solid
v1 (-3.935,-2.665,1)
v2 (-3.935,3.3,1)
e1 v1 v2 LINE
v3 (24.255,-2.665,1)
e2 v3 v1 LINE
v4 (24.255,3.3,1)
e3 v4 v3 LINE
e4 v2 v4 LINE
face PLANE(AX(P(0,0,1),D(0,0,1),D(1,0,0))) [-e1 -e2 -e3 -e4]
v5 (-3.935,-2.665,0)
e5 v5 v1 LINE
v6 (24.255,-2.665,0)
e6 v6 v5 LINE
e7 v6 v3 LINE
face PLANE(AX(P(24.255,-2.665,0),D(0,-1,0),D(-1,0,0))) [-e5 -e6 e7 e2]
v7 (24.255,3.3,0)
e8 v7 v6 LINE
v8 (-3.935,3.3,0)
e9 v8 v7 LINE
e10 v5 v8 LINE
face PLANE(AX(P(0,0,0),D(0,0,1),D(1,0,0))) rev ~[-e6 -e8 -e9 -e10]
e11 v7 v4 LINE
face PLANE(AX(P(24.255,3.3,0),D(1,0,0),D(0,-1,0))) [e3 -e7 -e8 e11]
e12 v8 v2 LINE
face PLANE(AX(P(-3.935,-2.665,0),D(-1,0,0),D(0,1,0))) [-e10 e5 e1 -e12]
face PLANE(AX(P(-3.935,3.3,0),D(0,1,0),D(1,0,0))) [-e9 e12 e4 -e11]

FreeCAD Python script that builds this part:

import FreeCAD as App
import Part
import Sketcher

V = App.Vector


def add_polygon(sketch, points):
    """Adds a closed chain of lines whose ends are joined by coincident constraints."""
    first, n = sketch.GeometryCount, len(points)
    for a, b in zip(points, points[1:] + points[:1]):
        sketch.addGeometry(Part.LineSegment(App.Vector(*a, 0), App.Vector(*b, 0)), False)
    for i in range(n):
        sketch.addConstraint(Sketcher.Constraint("Coincident", first + i, 2, first + (i + 1) % n, 1))

doc = App.newDocument("Part")
body = doc.addObject("PartDesign::Body", "Body")

sketch1 = body.newObject("Sketcher::SketchObject", "Sketch")
sketch1.AttachmentSupport = (doc.getObject("XY_Plane"), [""])
sketch1.MapMode = "FlatFace"
add_polygon(sketch1, [(-3.935, 3.3), (-3.935, -2.665), (24.255, -2.665), (24.255, 3.3)])
sketch1.addConstraint([
    Sketcher.Constraint("Vertical", 0),
    Sketcher.Constraint("Horizontal", 1),
    Sketcher.Constraint("Vertical", 2),
    Sketcher.Constraint("Horizontal", 3),
    Sketcher.Constraint("DistanceX", 1, 1, 1, 2, 28.19),
    Sketcher.Constraint("DistanceY", -1, 1, 2, 2, 3.3),
    Sketcher.Constraint("DistanceY", 0, 2, 0, 1, 5.965),
    Sketcher.Constraint("DistanceX", 0, 2, -1, 1, 3.935),
])
pad1 = body.newObject("PartDesign::Pad", "Pad")
pad1.Profile = sketch1
pad1.Length = 1

doc.recompute()
